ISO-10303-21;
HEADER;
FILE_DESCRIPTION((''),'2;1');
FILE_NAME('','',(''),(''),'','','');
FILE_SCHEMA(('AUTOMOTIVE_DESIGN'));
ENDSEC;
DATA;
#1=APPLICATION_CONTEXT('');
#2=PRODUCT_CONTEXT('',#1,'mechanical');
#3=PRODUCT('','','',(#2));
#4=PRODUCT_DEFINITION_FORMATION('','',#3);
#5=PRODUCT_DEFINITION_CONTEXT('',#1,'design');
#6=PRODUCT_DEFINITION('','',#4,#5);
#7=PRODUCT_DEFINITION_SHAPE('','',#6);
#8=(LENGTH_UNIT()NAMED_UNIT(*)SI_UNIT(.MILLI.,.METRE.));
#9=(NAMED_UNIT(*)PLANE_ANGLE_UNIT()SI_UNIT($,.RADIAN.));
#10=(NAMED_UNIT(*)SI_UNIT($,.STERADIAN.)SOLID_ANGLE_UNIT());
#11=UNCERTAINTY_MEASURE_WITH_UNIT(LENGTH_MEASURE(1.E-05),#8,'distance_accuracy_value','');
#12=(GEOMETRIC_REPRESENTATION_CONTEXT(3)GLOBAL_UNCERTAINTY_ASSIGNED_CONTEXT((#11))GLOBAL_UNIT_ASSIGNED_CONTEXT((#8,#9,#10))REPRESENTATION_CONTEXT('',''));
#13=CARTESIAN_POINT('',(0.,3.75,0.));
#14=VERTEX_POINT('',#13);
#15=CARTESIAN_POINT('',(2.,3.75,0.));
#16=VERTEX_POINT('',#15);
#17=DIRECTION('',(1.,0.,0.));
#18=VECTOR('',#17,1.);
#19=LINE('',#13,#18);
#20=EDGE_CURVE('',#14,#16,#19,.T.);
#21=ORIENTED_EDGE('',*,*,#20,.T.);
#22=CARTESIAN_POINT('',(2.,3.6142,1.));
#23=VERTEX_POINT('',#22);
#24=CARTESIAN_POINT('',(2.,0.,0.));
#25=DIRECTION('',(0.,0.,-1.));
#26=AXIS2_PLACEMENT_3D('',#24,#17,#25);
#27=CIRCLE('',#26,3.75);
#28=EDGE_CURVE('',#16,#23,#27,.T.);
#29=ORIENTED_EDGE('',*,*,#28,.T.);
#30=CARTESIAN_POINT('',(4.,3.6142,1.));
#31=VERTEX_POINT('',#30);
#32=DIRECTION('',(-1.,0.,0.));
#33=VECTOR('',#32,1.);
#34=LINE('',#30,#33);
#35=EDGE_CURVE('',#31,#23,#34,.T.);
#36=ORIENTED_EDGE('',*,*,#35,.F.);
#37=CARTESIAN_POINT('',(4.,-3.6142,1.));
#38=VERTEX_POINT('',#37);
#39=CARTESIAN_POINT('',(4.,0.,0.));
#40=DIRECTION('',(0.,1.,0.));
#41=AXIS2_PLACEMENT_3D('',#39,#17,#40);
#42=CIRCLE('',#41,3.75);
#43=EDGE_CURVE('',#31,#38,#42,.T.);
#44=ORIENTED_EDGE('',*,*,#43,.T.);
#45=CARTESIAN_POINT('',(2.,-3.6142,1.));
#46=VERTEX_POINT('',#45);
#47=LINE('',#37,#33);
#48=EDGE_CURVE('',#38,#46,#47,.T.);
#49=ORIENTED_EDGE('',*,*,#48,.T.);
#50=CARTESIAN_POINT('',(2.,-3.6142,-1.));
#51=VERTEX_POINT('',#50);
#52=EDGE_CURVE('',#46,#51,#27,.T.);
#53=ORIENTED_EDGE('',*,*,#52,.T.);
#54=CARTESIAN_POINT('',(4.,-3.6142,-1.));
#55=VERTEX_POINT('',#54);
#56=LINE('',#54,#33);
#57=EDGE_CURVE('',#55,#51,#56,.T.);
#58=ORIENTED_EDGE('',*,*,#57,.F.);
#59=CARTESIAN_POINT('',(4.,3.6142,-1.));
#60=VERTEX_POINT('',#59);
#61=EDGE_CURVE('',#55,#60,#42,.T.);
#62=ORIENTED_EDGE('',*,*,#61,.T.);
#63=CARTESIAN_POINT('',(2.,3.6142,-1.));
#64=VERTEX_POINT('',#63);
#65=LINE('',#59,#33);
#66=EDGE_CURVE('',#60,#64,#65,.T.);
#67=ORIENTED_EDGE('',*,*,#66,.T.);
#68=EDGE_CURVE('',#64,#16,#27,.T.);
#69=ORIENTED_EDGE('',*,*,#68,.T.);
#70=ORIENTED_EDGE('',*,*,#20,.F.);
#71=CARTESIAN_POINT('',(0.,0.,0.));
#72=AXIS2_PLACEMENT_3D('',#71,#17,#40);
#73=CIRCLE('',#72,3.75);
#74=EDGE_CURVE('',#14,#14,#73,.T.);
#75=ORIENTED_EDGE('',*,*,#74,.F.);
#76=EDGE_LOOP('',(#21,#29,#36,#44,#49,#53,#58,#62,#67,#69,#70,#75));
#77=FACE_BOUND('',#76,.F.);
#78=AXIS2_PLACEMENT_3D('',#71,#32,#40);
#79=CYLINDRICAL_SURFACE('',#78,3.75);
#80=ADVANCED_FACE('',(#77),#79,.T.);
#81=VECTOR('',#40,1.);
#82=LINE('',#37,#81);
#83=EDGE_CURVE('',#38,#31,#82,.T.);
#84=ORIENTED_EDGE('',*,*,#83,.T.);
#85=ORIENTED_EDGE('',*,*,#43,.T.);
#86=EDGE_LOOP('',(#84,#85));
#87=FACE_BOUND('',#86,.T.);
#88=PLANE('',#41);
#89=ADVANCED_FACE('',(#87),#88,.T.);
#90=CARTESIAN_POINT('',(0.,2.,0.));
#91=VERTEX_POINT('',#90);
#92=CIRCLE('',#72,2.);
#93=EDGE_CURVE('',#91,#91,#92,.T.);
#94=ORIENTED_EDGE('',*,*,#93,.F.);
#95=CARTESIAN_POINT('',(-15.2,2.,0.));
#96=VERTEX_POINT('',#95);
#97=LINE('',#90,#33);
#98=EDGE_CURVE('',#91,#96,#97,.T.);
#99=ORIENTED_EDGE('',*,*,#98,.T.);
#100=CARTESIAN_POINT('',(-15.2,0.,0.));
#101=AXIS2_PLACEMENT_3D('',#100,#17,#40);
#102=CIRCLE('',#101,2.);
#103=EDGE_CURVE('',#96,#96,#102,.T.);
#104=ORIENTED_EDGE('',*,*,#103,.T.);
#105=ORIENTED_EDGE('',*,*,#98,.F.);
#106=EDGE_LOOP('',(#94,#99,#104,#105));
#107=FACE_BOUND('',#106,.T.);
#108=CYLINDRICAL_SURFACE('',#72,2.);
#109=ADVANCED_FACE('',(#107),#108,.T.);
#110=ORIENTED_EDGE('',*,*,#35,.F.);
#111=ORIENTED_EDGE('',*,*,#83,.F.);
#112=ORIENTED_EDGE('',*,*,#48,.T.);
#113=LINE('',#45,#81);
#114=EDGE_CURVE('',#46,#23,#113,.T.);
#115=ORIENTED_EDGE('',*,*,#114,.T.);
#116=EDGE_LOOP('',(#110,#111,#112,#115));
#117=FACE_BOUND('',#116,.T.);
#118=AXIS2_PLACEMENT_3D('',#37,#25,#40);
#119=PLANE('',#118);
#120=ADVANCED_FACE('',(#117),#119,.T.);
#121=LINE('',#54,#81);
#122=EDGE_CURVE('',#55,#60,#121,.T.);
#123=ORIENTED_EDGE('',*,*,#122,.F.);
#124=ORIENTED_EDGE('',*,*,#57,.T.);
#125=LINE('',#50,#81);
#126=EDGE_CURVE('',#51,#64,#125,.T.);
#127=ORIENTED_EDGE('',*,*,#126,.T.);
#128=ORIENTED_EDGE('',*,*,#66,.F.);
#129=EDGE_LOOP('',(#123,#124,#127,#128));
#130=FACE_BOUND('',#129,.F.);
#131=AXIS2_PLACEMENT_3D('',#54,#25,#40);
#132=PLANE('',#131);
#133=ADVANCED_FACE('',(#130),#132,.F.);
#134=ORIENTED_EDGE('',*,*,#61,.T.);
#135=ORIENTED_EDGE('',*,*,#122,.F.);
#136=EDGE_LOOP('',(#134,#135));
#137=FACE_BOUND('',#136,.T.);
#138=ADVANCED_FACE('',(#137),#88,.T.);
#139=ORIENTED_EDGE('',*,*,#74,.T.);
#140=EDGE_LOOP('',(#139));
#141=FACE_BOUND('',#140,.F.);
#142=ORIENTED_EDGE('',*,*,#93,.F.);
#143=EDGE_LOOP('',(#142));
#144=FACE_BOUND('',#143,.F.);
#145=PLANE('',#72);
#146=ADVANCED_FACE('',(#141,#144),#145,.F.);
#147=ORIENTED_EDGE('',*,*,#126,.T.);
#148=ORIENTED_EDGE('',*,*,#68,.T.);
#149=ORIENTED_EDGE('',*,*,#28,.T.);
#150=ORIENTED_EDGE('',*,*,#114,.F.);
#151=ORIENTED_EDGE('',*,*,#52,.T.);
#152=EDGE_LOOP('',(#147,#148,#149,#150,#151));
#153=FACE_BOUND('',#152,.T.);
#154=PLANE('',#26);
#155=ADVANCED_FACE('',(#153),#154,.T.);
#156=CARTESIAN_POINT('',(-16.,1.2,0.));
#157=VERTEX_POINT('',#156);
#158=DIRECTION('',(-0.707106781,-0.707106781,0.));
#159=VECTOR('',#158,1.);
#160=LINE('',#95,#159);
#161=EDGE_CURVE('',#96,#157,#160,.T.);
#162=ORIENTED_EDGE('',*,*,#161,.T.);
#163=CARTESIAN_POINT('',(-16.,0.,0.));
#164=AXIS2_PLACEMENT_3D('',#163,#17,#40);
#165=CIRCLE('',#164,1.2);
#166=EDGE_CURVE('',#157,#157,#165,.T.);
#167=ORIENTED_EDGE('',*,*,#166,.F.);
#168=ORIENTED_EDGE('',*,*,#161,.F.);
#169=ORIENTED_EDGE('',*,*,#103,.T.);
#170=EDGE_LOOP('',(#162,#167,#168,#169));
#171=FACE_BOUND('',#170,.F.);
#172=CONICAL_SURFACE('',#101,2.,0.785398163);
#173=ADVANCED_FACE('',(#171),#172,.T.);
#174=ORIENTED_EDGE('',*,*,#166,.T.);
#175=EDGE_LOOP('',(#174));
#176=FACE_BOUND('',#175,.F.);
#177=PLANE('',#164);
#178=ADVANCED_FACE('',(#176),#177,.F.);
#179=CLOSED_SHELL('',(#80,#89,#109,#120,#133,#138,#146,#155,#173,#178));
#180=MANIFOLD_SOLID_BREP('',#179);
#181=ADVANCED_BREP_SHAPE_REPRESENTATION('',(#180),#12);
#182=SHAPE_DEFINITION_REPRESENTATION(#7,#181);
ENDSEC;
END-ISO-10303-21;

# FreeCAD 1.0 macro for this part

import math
import FreeCAD as App
import Part
import Sketcher
Q = App.Units.Quantity


def edges_at(feature, points):
    """Names of the edges that pass closest to the given points."""
    edges = feature.Shape.Edges
    near = lambda p: min(range(len(edges)), key=lambda i: edges[i].distToShape(Part.Vertex(*p))[0])
    return sorted({f"Edge{near(p) + 1}" for p in points})

doc = App.newDocument("Part")
body = doc.addObject("PartDesign::Body", "Body")

sketch1 = body.newObject("Sketcher::SketchObject", "Sketch")
sketch1.AttachmentSupport = (doc.getObject("YZ_Plane"), [""])
sketch1.MapMode = "FlatFace"
sketch1.addGeometry(Part.Circle(App.Vector(0, 0, 0), App.Vector(0, 0, 1), 2), False)
sketch1.addConstraint(Sketcher.Constraint("Coincident", 0, 3, -1, 1))
sketch1.addConstraint(Sketcher.Constraint("Diameter", 0, Q("4 mm")))
pad1 = body.newObject("PartDesign::Pad", "Pad")
pad1.Profile = sketch1
pad1.Length = 16
pad1.Reversed = True

sketch2 = body.newObject("Sketcher::SketchObject", "Sketch001")
sketch2.AttachmentSupport = (doc.getObject("YZ_Plane"), [""])
sketch2.MapMode = "FlatFace"
sketch2.addGeometry(Part.Circle(App.Vector(0, 0, 0), App.Vector(0, 0, 1), 3.8), False)
sketch2.addConstraint(Sketcher.Constraint("Coincident", 0, 3, -1, 1))
sketch2.addConstraint(Sketcher.Constraint("Diameter", 0, Q("7.5 mm")))
pad2 = body.newObject("PartDesign::Pad", "Pad001")
pad2.Profile = sketch2
pad2.Length = 4

sketch3 = body.newObject("Sketcher::SketchObject", "Sketch002")
sketch3.AttachmentSupport = (doc.getObject("YZ_Plane"), [""])
sketch3.MapMode = "FlatFace"
sketch3.AttachmentOffset = App.Placement(App.Vector(0, 0, 4), App.Rotation())
sketch3.addGeometry(Part.LineSegment(App.Vector(-3.6, -1, 0), App.Vector(3.6, -1, 0)), False)
sketch3.addGeometry(Part.ArcOfCircle(Part.Circle(App.Vector(0, 0, 0), App.Vector(0, 0, 1), 3.8), math.radians(-15), math.radians(15)), False)
sketch3.addGeometry(Part.LineSegment(App.Vector(3.6, 1, 0), App.Vector(-3.6, 1, 0)), False)
sketch3.addGeometry(Part.ArcOfCircle(Part.Circle(App.Vector(0, 0, 0), App.Vector(0, 0, 1), 3.8), math.radians(165), math.radians(195)), False)
sketch3.addConstraint(Sketcher.Constraint("Coincident", 0, 2, 1, 1))
sketch3.addConstraint(Sketcher.Constraint("Coincident", 1, 2, 2, 1))
sketch3.addConstraint(Sketcher.Constraint("Coincident", 2, 2, 3, 1))
sketch3.addConstraint(Sketcher.Constraint("Coincident", 3, 2, 0, 1))
sketch3.addConstraint(Sketcher.Constraint("Horizontal", 0))
sketch3.addConstraint(Sketcher.Constraint("Horizontal", 2))
sketch3.addConstraint(Sketcher.Constraint("Coincident", 1, 3, -1, 1))
sketch3.addConstraint(Sketcher.Constraint("Coincident", 3, 3, -1, 1))
sketch3.addConstraint(Sketcher.Constraint("Equal", 1, 3))
sketch3.addConstraint(Sketcher.Constraint("Vertical", 0, 2, 1, 2))
sketch3.addConstraint(Sketcher.Constraint("DistanceY", 0, 2, 1, 2, Q("2 mm")))
sketch3.addConstraint(Sketcher.Constraint("Radius", 1, Q("3.75 mm")))
pocket1 = body.newObject("PartDesign::Pocket", "Pocket")
pocket1.Profile = sketch3
pocket1.Length = 2
doc.recompute()

chamfer = body.newObject("PartDesign::Chamfer", "Chamfer")
chamfer.Base = (pocket1, edges_at(pocket1, [(-16, -2, 0)]))
chamfer.Size = 0.8

doc.recompute()
